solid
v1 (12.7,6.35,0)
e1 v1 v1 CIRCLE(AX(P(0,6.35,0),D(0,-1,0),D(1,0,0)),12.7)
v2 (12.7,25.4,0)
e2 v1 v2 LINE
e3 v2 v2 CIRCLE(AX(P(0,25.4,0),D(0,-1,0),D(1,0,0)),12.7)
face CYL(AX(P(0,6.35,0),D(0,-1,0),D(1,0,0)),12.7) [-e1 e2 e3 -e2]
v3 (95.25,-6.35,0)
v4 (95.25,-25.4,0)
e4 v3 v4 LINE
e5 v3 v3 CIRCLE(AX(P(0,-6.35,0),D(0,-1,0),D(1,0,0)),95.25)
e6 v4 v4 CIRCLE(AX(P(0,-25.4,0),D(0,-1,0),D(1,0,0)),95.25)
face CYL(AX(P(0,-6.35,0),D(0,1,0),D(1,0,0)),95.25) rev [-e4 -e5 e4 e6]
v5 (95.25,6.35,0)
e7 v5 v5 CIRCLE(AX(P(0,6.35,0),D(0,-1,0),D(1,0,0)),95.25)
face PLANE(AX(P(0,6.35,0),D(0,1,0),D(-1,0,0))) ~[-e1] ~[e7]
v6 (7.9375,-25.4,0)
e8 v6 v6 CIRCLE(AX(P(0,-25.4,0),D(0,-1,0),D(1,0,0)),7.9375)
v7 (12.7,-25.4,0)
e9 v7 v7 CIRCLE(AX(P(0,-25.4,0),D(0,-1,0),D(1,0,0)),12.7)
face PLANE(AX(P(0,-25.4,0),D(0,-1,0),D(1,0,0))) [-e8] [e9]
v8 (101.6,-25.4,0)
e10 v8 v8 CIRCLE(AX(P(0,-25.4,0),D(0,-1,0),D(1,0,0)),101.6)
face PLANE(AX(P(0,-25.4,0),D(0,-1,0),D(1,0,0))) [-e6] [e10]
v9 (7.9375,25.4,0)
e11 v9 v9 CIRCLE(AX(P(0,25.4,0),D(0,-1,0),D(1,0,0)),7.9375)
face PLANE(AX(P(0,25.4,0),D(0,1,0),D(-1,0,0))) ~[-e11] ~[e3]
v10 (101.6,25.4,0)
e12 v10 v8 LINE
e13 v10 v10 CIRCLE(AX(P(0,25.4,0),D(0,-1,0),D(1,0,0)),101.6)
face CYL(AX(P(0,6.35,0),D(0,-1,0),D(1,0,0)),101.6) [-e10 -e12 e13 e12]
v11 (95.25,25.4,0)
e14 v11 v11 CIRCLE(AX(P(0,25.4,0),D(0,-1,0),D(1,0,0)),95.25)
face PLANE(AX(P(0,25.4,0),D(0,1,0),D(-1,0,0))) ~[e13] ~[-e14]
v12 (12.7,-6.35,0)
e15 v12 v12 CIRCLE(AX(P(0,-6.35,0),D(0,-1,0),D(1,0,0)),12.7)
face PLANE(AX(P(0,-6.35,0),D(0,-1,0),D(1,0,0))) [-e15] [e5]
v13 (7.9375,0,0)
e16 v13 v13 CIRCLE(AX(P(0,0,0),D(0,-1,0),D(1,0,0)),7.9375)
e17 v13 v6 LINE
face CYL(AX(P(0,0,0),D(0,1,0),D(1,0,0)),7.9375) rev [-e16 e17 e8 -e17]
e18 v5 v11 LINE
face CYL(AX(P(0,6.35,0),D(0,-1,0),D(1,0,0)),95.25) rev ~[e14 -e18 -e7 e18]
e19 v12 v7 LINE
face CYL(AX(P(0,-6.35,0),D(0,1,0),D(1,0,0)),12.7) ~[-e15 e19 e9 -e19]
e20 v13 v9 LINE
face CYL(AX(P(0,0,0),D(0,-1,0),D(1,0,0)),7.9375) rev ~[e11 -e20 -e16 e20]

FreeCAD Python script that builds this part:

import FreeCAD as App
import Part
import Sketcher
Q = App.Units.Quantity

doc = App.newDocument("Part")
params = doc.addObject("Spreadsheet::Sheet", "Params")
for row, (alias, value) in enumerate([
    ("sketch1_diameter", "8 in"),
    ("sketch1_diameter2", "0.625 in"),
    ("pad1_length", "0.25 in"),
    ("sketch2_diameter", "8 in"),
    ("sketch2_diameter2", "1 in"),
    ("sketch2_diameter3", "7.5 in"),
    ("sketch2_diameter4", "0.625 in"),
    ("pad2_length", "0.75 in"),
], start=1):
    params.set(f"A{row}", alias)
    params.set(f"B{row}", "=" + value)
    params.setAlias(f"B{row}", alias)

body = doc.addObject("PartDesign::Body", "Body")

# Sketch on XZ plane
sketch1 = body.newObject("Sketcher::SketchObject", "Sketch")
sketch1.AttachmentSupport = (doc.getObject("XZ_Plane"), [""])
sketch1.MapMode = "FlatFace"
sketch1.addGeometry([
    Part.Circle(App.Vector(0, 0, 0), App.Vector(0, 0, 1), 102),
    Part.Circle(App.Vector(0, 0, 0), App.Vector(0, 0, 1), 8),
], False)
sketch1.addConstraint([
    Sketcher.Constraint("Coincident", 0, 3, -1, 1),
    Sketcher.Constraint("Coincident", 1, 3, -1, 1),
    Sketcher.Constraint("Diameter", 0, Q("8 in")),
    Sketcher.Constraint("Diameter", 1, Q("0.625 in")),
])
sketch1.setExpression("Constraints[2]", "Params.sketch1_diameter")
sketch1.setExpression("Constraints[3]", "Params.sketch1_diameter2")
pad1 = body.newObject("PartDesign::Pad", "Pad")
pad1.Profile = sketch1
pad1.setExpression("Length", "Params.pad1_length")

# Sketch on XZ plane
sketch2 = body.newObject("Sketcher::SketchObject", "Sketch001")
sketch2.AttachmentSupport = (doc.getObject("XZ_Plane"), [""])
sketch2.MapMode = "FlatFace"
sketch2.AttachmentOffset = App.Placement(App.Vector(0, 0, 0.25 * 25.4), App.Rotation())
sketch2.addGeometry([
    Part.Circle(App.Vector(0, 0, 0), App.Vector(0, 0, 1), 102),
    Part.Circle(App.Vector(0, 0, 0), App.Vector(0, 0, 1), 95),
    Part.Circle(App.Vector(0, 0, 0), App.Vector(0, 0, 1), 13),
    Part.Circle(App.Vector(0, 0, 0), App.Vector(0, 0, 1), 8),
], False)
sketch2.addConstraint([
    Sketcher.Constraint("Coincident", 0, 3, -1, 1),
    Sketcher.Constraint("Coincident", 1, 3, -1, 1),
    Sketcher.Constraint("Coincident", 2, 3, -1, 1),
    Sketcher.Constraint("Coincident", 3, 3, -1, 1),
    Sketcher.Constraint("Diameter", 0, Q("8 in")),
    Sketcher.Constraint("Diameter", 2, Q("1 in")),
    Sketcher.Constraint("Diameter", 1, Q("7.5 in")),
    Sketcher.Constraint("Diameter", 3, Q("0.625 in")),
])
sketch2.setExpression("Constraints[4]", "Params.sketch2_diameter")
sketch2.setExpression("Constraints[5]", "Params.sketch2_diameter2")
sketch2.setExpression("Constraints[6]", "Params.sketch2_diameter3")
sketch2.setExpression("Constraints[7]", "Params.sketch2_diameter4")
pad2 = body.newObject("PartDesign::Pad", "Pad001")
pad2.Profile = sketch2
pad2.setExpression("Length", "Params.pad2_length")
body2 = doc.addObject("PartDesign::Body", "Body001")
doc.recompute()

body2.BaseFeature = body
doc.recompute()

mirroring = doc.addObject("Part::Mirroring", "Mirroring")
mirroring.Source = body
mirroring.Base = App.Vector(0, 0, 0)
mirroring.Normal = App.Vector(0, -1, 0)
body3 = doc.addObject("PartDesign::Body", "Body002")
body3.BaseFeature = mirroring
boolean = body2.newObject("PartDesign::Boolean", "Boolean")
boolean.Type = "Fuse"
boolean.addObjects([body3])
doc.recompute()
mirroring.Visibility = False

doc.recompute()
